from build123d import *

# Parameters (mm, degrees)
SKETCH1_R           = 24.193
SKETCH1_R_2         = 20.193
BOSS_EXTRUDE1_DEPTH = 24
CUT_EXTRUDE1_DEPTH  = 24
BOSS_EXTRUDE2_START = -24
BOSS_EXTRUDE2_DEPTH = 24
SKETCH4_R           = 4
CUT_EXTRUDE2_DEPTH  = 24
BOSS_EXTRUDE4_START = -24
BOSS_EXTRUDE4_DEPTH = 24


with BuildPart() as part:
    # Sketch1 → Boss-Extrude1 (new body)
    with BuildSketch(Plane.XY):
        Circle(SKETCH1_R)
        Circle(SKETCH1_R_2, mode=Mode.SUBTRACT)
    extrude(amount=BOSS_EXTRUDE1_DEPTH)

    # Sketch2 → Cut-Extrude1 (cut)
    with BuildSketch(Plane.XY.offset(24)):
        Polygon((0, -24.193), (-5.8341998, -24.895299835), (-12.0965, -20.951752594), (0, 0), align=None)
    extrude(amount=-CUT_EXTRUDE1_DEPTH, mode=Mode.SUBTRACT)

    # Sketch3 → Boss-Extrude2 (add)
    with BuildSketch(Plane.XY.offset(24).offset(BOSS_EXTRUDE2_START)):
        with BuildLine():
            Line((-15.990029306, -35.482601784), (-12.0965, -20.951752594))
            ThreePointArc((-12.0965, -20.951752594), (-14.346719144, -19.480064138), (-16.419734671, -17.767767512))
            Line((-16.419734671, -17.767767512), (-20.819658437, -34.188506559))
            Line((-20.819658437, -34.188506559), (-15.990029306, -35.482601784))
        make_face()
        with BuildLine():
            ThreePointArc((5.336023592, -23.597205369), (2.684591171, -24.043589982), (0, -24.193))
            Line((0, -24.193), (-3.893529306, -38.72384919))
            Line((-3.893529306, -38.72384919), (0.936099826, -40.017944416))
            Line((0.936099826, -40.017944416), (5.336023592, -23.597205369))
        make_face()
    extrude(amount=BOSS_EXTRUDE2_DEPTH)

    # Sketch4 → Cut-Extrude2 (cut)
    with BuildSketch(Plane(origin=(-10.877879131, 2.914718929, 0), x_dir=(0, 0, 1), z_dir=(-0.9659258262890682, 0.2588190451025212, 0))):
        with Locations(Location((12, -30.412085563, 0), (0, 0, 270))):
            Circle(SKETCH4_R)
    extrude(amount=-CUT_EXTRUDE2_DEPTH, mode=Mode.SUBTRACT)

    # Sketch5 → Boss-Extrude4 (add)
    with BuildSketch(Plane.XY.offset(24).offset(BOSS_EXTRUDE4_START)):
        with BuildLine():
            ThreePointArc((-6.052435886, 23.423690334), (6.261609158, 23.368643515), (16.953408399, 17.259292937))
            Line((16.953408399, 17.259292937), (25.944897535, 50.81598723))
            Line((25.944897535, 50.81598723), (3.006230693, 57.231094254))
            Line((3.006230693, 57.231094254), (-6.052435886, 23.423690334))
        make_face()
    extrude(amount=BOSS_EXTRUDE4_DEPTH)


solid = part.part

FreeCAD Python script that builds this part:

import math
import FreeCAD as App
import Part
import Sketcher
Q = App.Units.Quantity

doc = App.newDocument("Part")
body = doc.addObject("PartDesign::Body", "Body")

sketch1 = body.newObject("Sketcher::SketchObject", "Sketch")
sketch1.AttachmentSupport = (doc.getObject("XY_Plane"), [""])
sketch1.MapMode = "FlatFace"
sketch1.addGeometry(Part.Circle(App.Vector(0, 0, 0), App.Vector(0, 0, 1), 24), False)
sketch1.addGeometry(Part.Circle(App.Vector(0, 0, 0), App.Vector(0, 0, 1), 20), False)
sketch1.addConstraint(Sketcher.Constraint("Coincident", 0, 3, -1, 1))
sketch1.addConstraint(Sketcher.Constraint("Coincident", 1, 3, -1, 1))
sketch1.addConstraint(Sketcher.Constraint("Diameter", 0, 48.386))
sketch1.addConstraint(Sketcher.Constraint("Diameter", 1, 40.386))
pad1 = body.newObject("PartDesign::Pad", "Pad")
pad1.Profile = sketch1
pad1.Length = 24

sketch2 = body.newObject("Sketcher::SketchObject", "Sketch001")
sketch2.AttachmentSupport = (doc.getObject("XY_Plane"), [""])
sketch2.MapMode = "FlatFace"
sketch2.AttachmentOffset = App.Placement(App.Vector(0, 0, 24), App.Rotation())
sketch2.addGeometry(Part.LineSegment(App.Vector(-6, -25, 0), App.Vector(0, -24, 0)), False)
sketch2.addGeometry(Part.LineSegment(App.Vector(0, -24, 0), App.Vector(0, 0, 0)), False)
sketch2.addGeometry(Part.LineSegment(App.Vector(0, 0, 0), App.Vector(-12, -21, 0)), False)
sketch2.addGeometry(Part.LineSegment(App.Vector(-12, -21, 0), App.Vector(-6, -25, 0)), False)
sketch2.addConstraint(Sketcher.Constraint("Coincident", 0, 2, 1, 1))
sketch2.addConstraint(Sketcher.Constraint("Coincident", 1, 2, 2, 1))
sketch2.addConstraint(Sketcher.Constraint("Coincident", 2, 2, 3, 1))
sketch2.addConstraint(Sketcher.Constraint("Coincident", 3, 2, 0, 1))
sketch2.addConstraint(Sketcher.Constraint("Vertical", 1))
sketch2.addConstraint(Sketcher.Constraint("Coincident", 1, 2, -1, 1))
sketch2.addConstraint(Sketcher.Constraint("Angle", 2, Q("-120 deg")))
sketch2.addConstraint(Sketcher.Constraint("DistanceY", 1, 1, 1, 2, 24.193))
sketch2.addConstraint(Sketcher.Constraint("Distance", 2, 24.193))
sketch2.addConstraint(Sketcher.Constraint("DistanceX", 3, 2, -1, 1, 5.8342))
sketch2.addConstraint(Sketcher.Constraint("DistanceY", 3, 2, -1, 1, 24.8953))
pocket1 = body.newObject("PartDesign::Pocket", "Pocket")
pocket1.Profile = sketch2
pocket1.Length = 24

sketch3 = body.newObject("Sketcher::SketchObject", "Sketch002")
sketch3.AttachmentSupport = (doc.getObject("XY_Plane"), [""])
sketch3.MapMode = "FlatFace"
sketch3.addGeometry(Part.LineSegment(App.Vector(-16, -35.5, 0), App.Vector(-12.1, -21, 0)), False)
sketch3.addGeometry(Part.ArcOfCircle(Part.Circle(App.Vector(0, 0, 0), App.Vector(0, 0, 1), 24.2), math.radians(-132.74), math.radians(-120)), False)
sketch3.addGeometry(Part.LineSegment(App.Vector(-16.4, -17.8, 0), App.Vector(-20.8, -34.2, 0)), False)
sketch3.addGeometry(Part.LineSegment(App.Vector(-20.8, -34.2, 0), App.Vector(-16, -35.5, 0)), False)
sketch3.addGeometry(Part.ArcOfCircle(Part.Circle(App.Vector(0, 0, 0), App.Vector(0, 0, 1), 24.2), math.radians(-90), math.radians(-77.26)), False)
sketch3.addGeometry(Part.LineSegment(App.Vector(0, -24.2, 0), App.Vector(-3.9, -38.7, 0)), False)
sketch3.addGeometry(Part.LineSegment(App.Vector(-3.9, -38.7, 0), App.Vector(0.9, -40, 0)), False)
sketch3.addGeometry(Part.LineSegment(App.Vector(0.9, -40, 0), App.Vector(5.3, -23.6, 0)), False)
sketch3.addConstraint(Sketcher.Constraint("Coincident", 0, 2, 1, 2))
sketch3.addConstraint(Sketcher.Constraint("Coincident", 1, 1, 2, 1))
sketch3.addConstraint(Sketcher.Constraint("Coincident", 2, 2, 3, 1))
sketch3.addConstraint(Sketcher.Constraint("Coincident", 3, 2, 0, 1))
sketch3.addConstraint(Sketcher.Constraint("Coincident", 4, 1, 5, 1))
sketch3.addConstraint(Sketcher.Constraint("Coincident", 5, 2, 6, 1))
sketch3.addConstraint(Sketcher.Constraint("Coincident", 6, 2, 7, 1))
sketch3.addConstraint(Sketcher.Constraint("Coincident", 7, 2, 4, 2))
sketch3.addConstraint(Sketcher.Constraint("Coincident", 1, 3, -1, 1))
sketch3.addConstraint(Sketcher.Constraint("Coincident", 4, 3, -1, 1))
sketch3.addConstraint(Sketcher.Constraint("Equal", 1, 4))
sketch3.addConstraint(Sketcher.Constraint("PointOnObject", 4, 1, -2))
sketch3.addConstraint(Sketcher.Constraint("Parallel", 0, 2))
sketch3.addConstraint(Sketcher.Constraint("Perpendicular", 2, 3))
sketch3.addConstraint(Sketcher.Constraint("Perpendicular", 3, 5))
sketch3.addConstraint(Sketcher.Constraint("Perpendicular", 5, 6))
sketch3.addConstraint(Sketcher.Constraint("Perpendicular", 6, 7))
sketch3.addConstraint(Sketcher.Constraint("Equal", 0, 5))
sketch3.addConstraint(Sketcher.Constraint("Equal", 3, 6))
sketch3.addConstraint(Sketcher.Constraint("Equal", 2, 7))
sketch3.addConstraint(Sketcher.Constraint("Angle", 0, Q("75 deg")))
sketch3.addConstraint(Sketcher.Constraint("Distance", 2, 17.0))
sketch3.addConstraint(Sketcher.Constraint("Distance", 3, 5.0))
sketch3.addConstraint(Sketcher.Constraint("Radius", 1, 24.193))
pad2 = body.newObject("PartDesign::Pad", "Pad001")
pad2.Profile = sketch3
pad2.Length = 24

sketch4 = body.newObject("Sketcher::SketchObject", "Sketch003")
sketch4.Placement = App.Placement(App.Vector(-10.877879, 2.914719, 0), App.Rotation(App.Vector(0, 0, 1), App.Vector(0.258819045, 0.965925826, 0), App.Vector(-0.965925826, 0.258819045, 0), "ZXY"))
sketch4.addGeometry(Part.Circle(App.Vector(12, -30.4, 0), App.Vector(0, 0, 1), 4), False)
sketch4.addConstraint(Sketcher.Constraint("Diameter", 0, 8.0))
sketch4.addConstraint(Sketcher.Constraint("DistanceX", -1, 1, 0, 3, 12.0))
sketch4.addConstraint(Sketcher.Constraint("DistanceY", 0, 3, -1, 1, 30.412086))
pocket2 = body.newObject("PartDesign::Pocket", "Pocket001")
pocket2.Profile = sketch4
pocket2.Length = 24

sketch5 = body.newObject("Sketcher::SketchObject", "Sketch004")
sketch5.AttachmentSupport = (doc.getObject("XY_Plane"), [""])
sketch5.MapMode = "FlatFace"
sketch5.addGeometry(Part.ArcOfCircle(Part.Circle(App.Vector(0, 0, 0), App.Vector(0, 0, 1), 24), math.radians(46), math.radians(104)), False)
sketch5.addGeometry(Part.LineSegment(App.Vector(17, 17, 0), App.Vector(26, 51, 0)), False)
sketch5.addGeometry(Part.LineSegment(App.Vector(26, 51, 0), App.Vector(3, 57, 0)), False)
sketch5.addGeometry(Part.LineSegment(App.Vector(3, 57, 0), App.Vector(-6, 23, 0)), False)
sketch5.addConstraint(Sketcher.Constraint("Coincident", 0, 1, 1, 1))
sketch5.addConstraint(Sketcher.Constraint("Coincident", 1, 2, 2, 1))
sketch5.addConstraint(Sketcher.Constraint("Coincident", 2, 2, 3, 1))
sketch5.addConstraint(Sketcher.Constraint("Coincident", 3, 2, 0, 2))
sketch5.addConstraint(Sketcher.Constraint("Coincident", 0, 3, -1, 1))
sketch5.addConstraint(Sketcher.Constraint("Parallel", 1, 3))
sketch5.addConstraint(Sketcher.Constraint("Angle", 1, Q("75 deg")))
sketch5.addConstraint(Sketcher.Constraint("Distance", 3, 35.0))
sketch5.addConstraint(Sketcher.Constraint("Radius", 0, 24.193))
sketch5.addConstraint(Sketcher.Constraint("DistanceY", 0, 1, 2, 2, 39.971801))
sketch5.addConstraint(Sketcher.Constraint("DistanceX", -1, 1, 0, 1, 16.953408))
sketch5.addConstraint(Sketcher.Constraint("DistanceX", 0, 1, 1, 2, 8.991489))
pad3 = body.newObject("PartDesign::Pad", "Pad002")
pad3.Profile = sketch5
pad3.Length = 24

doc.recompute()
